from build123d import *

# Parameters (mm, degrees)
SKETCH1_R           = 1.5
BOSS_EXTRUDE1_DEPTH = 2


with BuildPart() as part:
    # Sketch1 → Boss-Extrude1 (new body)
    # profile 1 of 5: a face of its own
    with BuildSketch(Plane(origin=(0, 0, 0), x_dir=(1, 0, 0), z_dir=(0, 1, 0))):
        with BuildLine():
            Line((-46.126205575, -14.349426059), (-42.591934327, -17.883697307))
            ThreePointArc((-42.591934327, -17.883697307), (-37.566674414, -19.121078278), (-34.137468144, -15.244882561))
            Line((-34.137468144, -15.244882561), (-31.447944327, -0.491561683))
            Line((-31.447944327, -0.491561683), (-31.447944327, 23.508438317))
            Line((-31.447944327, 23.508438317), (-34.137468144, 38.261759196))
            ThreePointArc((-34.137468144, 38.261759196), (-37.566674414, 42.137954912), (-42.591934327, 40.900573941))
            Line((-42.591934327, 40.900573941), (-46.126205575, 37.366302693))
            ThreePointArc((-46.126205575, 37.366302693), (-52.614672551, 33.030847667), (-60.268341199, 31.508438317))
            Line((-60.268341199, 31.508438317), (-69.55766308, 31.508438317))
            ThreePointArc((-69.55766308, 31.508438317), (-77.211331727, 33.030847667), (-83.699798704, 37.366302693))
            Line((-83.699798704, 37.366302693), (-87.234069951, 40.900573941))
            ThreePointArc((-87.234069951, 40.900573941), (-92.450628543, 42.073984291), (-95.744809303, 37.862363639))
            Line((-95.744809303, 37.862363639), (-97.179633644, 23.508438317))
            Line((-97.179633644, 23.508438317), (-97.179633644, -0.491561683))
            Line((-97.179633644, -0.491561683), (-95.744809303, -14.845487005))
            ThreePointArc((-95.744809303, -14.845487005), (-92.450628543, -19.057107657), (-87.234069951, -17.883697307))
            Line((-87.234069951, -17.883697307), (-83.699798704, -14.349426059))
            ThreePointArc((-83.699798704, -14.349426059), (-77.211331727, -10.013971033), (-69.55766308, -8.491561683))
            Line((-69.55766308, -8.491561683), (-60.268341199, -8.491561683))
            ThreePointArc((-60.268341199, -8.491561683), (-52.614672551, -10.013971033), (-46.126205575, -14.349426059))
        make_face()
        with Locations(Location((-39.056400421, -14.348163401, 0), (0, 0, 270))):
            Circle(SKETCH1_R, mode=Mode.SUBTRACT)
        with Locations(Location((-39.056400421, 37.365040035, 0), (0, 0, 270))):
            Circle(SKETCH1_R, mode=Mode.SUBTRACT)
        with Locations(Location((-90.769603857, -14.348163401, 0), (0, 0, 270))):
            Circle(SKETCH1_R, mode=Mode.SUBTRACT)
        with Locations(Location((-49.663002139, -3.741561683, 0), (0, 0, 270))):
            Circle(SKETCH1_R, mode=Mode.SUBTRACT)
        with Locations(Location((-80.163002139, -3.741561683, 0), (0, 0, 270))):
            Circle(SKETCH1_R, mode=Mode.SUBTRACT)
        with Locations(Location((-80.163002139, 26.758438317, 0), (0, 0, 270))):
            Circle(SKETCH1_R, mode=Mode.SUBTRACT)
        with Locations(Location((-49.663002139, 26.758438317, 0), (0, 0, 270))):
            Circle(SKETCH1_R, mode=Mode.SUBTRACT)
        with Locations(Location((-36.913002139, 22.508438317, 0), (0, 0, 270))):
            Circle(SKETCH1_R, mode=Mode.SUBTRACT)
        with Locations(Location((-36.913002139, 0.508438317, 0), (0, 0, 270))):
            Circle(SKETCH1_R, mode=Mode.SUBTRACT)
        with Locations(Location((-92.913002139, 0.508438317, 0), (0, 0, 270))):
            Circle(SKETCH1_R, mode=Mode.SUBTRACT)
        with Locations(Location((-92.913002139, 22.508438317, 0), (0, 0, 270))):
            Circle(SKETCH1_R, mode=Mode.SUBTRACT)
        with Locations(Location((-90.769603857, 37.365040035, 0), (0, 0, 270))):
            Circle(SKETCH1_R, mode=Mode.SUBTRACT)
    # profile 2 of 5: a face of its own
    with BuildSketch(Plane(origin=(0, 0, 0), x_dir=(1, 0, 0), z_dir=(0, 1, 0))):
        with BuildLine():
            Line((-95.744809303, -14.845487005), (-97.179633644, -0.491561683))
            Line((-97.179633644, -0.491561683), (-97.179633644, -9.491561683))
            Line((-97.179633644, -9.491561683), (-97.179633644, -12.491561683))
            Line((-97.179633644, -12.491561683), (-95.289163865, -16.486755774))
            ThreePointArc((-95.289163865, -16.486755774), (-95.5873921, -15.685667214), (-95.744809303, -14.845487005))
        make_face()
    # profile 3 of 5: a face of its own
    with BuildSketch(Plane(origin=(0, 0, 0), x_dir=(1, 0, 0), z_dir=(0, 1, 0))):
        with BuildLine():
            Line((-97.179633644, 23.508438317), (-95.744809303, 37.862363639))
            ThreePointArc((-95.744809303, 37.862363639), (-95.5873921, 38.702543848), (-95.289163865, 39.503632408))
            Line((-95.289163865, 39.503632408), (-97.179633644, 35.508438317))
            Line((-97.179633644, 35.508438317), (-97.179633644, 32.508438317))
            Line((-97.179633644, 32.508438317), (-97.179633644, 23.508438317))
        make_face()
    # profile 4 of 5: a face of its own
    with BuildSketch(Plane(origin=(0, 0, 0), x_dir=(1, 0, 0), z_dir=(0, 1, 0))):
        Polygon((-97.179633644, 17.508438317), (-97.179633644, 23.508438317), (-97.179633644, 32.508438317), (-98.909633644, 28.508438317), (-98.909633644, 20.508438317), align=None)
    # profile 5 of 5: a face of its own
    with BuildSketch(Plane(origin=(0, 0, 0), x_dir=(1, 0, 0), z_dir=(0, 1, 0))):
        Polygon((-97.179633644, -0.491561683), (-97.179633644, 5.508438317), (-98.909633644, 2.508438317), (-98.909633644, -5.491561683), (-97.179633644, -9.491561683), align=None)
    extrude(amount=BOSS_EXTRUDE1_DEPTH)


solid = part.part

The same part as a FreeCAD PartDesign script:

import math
import FreeCAD as App
import Part
import Sketcher
from FreeCAD import Vector

doc = App.newDocument("Part")
body = doc.addObject("PartDesign::Body", "Body")

sketch1 = body.newObject("Sketcher::SketchObject", "Sketch")
sketch1.AttachmentSupport = (doc.getObject("XZ_Plane"), [""])
sketch1.MapMode = "FlatFace"
sketch1.addGeometry(Part.LineSegment(Vector(-46.1, 14.3, 0), Vector(-42.6, 17.9, 0)), False)
sketch1.addGeometry(Part.ArcOfCircle(Part.Circle(Vector(-39.1, 14.3, 0), Vector(0, 0, 1), 5), math.radians(10), math.radians(135)), False)
sketch1.addGeometry(Part.LineSegment(Vector(-34.1, 15.2, 0), Vector(-31.4, 0.5, 0)), False)
sketch1.addGeometry(Part.LineSegment(Vector(-31.4, 0.5, 0), Vector(-31.4, -23.5, 0)), False)
sketch1.addGeometry(Part.LineSegment(Vector(-31.4, -23.5, 0), Vector(-34.1, -38.3, 0)), False)
sketch1.addGeometry(Part.ArcOfCircle(Part.Circle(Vector(-39.1, -37.4, 0), Vector(0, 0, 1), 5), math.radians(-135), math.radians(-10)), False)
sketch1.addGeometry(Part.LineSegment(Vector(-42.6, -40.9, 0), Vector(-46.1, -37.4, 0)), False)
sketch1.addGeometry(Part.ArcOfCircle(Part.Circle(Vector(-60.3, -51.5, 0), Vector(0, 0, 1), 20), math.radians(45), math.radians(90)), False)
sketch1.addGeometry(Part.LineSegment(Vector(-60.3, -31.5, 0), Vector(-69.6, -31.5, 0)), False)
sketch1.addGeometry(Part.ArcOfCircle(Part.Circle(Vector(-69.6, -51.5, 0), Vector(0, 0, 1), 20), math.radians(90), math.radians(135)), False)
sketch1.addGeometry(Part.LineSegment(Vector(-83.7, -37.4, 0), Vector(-87.2, -40.9, 0)), False)
sketch1.addGeometry(Part.ArcOfCircle(Part.Circle(Vector(-90.8, -37.4, 0), Vector(0, 0, 1), 5), math.radians(-155), math.radians(-45)), False)
sketch1.addGeometry(Part.LineSegment(Vector(-95.3, -39.5, 0), Vector(-97.2, -35.5, 0)), False)
sketch1.addGeometry(Part.LineSegment(Vector(-97.2, -35.5, 0), Vector(-97.2, -32.5, 0)), False)
sketch1.addGeometry(Part.LineSegment(Vector(-97.2, -32.5, 0), Vector(-98.9, -28.5, 0)), False)
sketch1.addGeometry(Part.LineSegment(Vector(-98.9, -28.5, 0), Vector(-98.9, -20.5, 0)), False)
sketch1.addGeometry(Part.LineSegment(Vector(-98.9, -20.5, 0), Vector(-97.2, -17.5, 0)), False)
sketch1.addGeometry(Part.LineSegment(Vector(-97.2, -17.5, 0), Vector(-97.2, -5.5, 0)), False)
sketch1.addGeometry(Part.LineSegment(Vector(-97.2, -5.5, 0), Vector(-98.9, -2.5, 0)), False)
sketch1.addGeometry(Part.LineSegment(Vector(-98.9, -2.5, 0), Vector(-98.9, 5.5, 0)), False)
sketch1.addGeometry(Part.LineSegment(Vector(-98.9, 5.5, 0), Vector(-97.2, 9.5, 0)), False)
sketch1.addGeometry(Part.LineSegment(Vector(-97.2, 9.5, 0), Vector(-97.2, 12.5, 0)), False)
sketch1.addGeometry(Part.LineSegment(Vector(-97.2, 12.5, 0), Vector(-95.3, 16.5, 0)), False)
sketch1.addGeometry(Part.ArcOfCircle(Part.Circle(Vector(-90.8, 14.3, 0), Vector(0, 0, 1), 5), math.radians(45), math.radians(155)), False)
sketch1.addGeometry(Part.LineSegment(Vector(-87.2, 17.9, 0), Vector(-83.7, 14.3, 0)), False)
sketch1.addGeometry(Part.ArcOfCircle(Part.Circle(Vector(-69.6, 28.5, 0), Vector(0, 0, 1), 20), math.radians(-135), math.radians(-90)), False)
sketch1.addGeometry(Part.LineSegment(Vector(-69.6, 8.5, 0), Vector(-60.3, 8.5, 0)), False)
sketch1.addGeometry(Part.ArcOfCircle(Part.Circle(Vector(-60.3, 28.5, 0), Vector(0, 0, 1), 20), math.radians(-90), math.radians(-45)), False)
sketch1.addGeometry(Part.Circle(Vector(-90.8, 14.3, 0), Vector(0, 0, 1), 1.5), False)
sketch1.addGeometry(Part.Circle(Vector(-80.2, 3.7, 0), Vector(0, 0, 1), 1.5), False)
sketch1.addGeometry(Part.Circle(Vector(-92.9, -0.5, 0), Vector(0, 0, 1), 1.5), False)
sketch1.addGeometry(Part.Circle(Vector(-39.1, 14.3, 0), Vector(0, 0, 1), 1.5), False)
sketch1.addGeometry(Part.Circle(Vector(-49.7, 3.7, 0), Vector(0, 0, 1), 1.5), False)
sketch1.addGeometry(Part.Circle(Vector(-36.9, -0.5, 0), Vector(0, 0, 1), 1.5), False)
sketch1.addGeometry(Part.Circle(Vector(-92.9, -22.5, 0), Vector(0, 0, 1), 1.5), False)
sketch1.addGeometry(Part.Circle(Vector(-80.2, -26.8, 0), Vector(0, 0, 1), 1.5), False)
sketch1.addGeometry(Part.Circle(Vector(-90.8, -37.4, 0), Vector(0, 0, 1), 1.5), False)
sketch1.addGeometry(Part.Circle(Vector(-36.9, -22.5, 0), Vector(0, 0, 1), 1.5), False)
sketch1.addGeometry(Part.Circle(Vector(-49.7, -26.8, 0), Vector(0, 0, 1), 1.5), False)
sketch1.addGeometry(Part.Circle(Vector(-39.1, -37.4, 0), Vector(0, 0, 1), 1.5), False)
sketch1.addConstraint(Sketcher.Constraint("Tangent", 0, 2, 1, 2))
sketch1.addConstraint(Sketcher.Constraint("Tangent", 1, 1, 2, 1))
sketch1.addConstraint(Sketcher.Constraint("Coincident", 2, 2, 3, 1))
sketch1.addConstraint(Sketcher.Constraint("Coincident", 3, 2, 4, 1))
sketch1.addConstraint(Sketcher.Constraint("Tangent", 4, 2, 5, 2))
sketch1.addConstraint(Sketcher.Constraint("Tangent", 5, 1, 6, 1))
sketch1.addConstraint(Sketcher.Constraint("Tangent", 6, 2, 7, 1))
sketch1.addConstraint(Sketcher.Constraint("Tangent", 7, 2, 8, 1))
sketch1.addConstraint(Sketcher.Constraint("Tangent", 8, 2, 9, 1))
sketch1.addConstraint(Sketcher.Constraint("Tangent", 9, 2, 10, 1))
sketch1.addConstraint(Sketcher.Constraint("Tangent", 10, 2, 11, 2))
sketch1.addConstraint(Sketcher.Constraint("Tangent", 11, 1, 12, 1))
sketch1.addConstraint(Sketcher.Constraint("Coincident", 12, 2, 13, 1))
sketch1.addConstraint(Sketcher.Constraint("Coincident", 13, 2, 14, 1))
sketch1.addConstraint(Sketcher.Constraint("Coincident", 14, 2, 15, 1))
sketch1.addConstraint(Sketcher.Constraint("Coincident", 15, 2, 16, 1))
sketch1.addConstraint(Sketcher.Constraint("Coincident", 16, 2, 17, 1))
sketch1.addConstraint(Sketcher.Constraint("Coincident", 17, 2, 18, 1))
sketch1.addConstraint(Sketcher.Constraint("Coincident", 18, 2, 19, 1))
sketch1.addConstraint(Sketcher.Constraint("Coincident", 19, 2, 20, 1))
sketch1.addConstraint(Sketcher.Constraint("Coincident", 20, 2, 21, 1))
sketch1.addConstraint(Sketcher.Constraint("Coincident", 21, 2, 22, 1))
sketch1.addConstraint(Sketcher.Constraint("Tangent", 22, 2, 23, 2))
sketch1.addConstraint(Sketcher.Constraint("Tangent", 23, 1, 24, 1))
sketch1.addConstraint(Sketcher.Constraint("Tangent", 24, 2, 25, 1))
sketch1.addConstraint(Sketcher.Constraint("Tangent", 25, 2, 26, 1))
sketch1.addConstraint(Sketcher.Constraint("Tangent", 26, 2, 27, 1))
sketch1.addConstraint(Sketcher.Constraint("Tangent", 27, 2, 0, 1))
sketch1.addConstraint(Sketcher.Constraint("Vertical", 3))
sketch1.addConstraint(Sketcher.Constraint("Horizontal", 8))
sketch1.addConstraint(Sketcher.Constraint("Vertical", 13))
sketch1.addConstraint(Sketcher.Constraint("Vertical", 15))
sketch1.addConstraint(Sketcher.Constraint("Vertical", 17))
sketch1.addConstraint(Sketcher.Constraint("Vertical", 19))
sketch1.addConstraint(Sketcher.Constraint("Vertical", 21))
sketch1.addConstraint(Sketcher.Constraint("Horizontal", 26))
sketch1.addConstraint(Sketcher.Constraint("Coincident", 28, 3, 23, 3))
sketch1.addConstraint(Sketcher.Constraint("Coincident", 31, 3, 1, 3))
sketch1.addConstraint(Sketcher.Constraint("Coincident", 36, 3, 11, 3))
sketch1.addConstraint(Sketcher.Constraint("Coincident", 39, 3, 5, 3))
sketch1.addConstraint(Sketcher.Constraint("Equal", 1, 5))
sketch1.addConstraint(Sketcher.Constraint("Equal", 7, 9))
sketch1.addConstraint(Sketcher.Constraint("Equal", 5, 11))
sketch1.addConstraint(Sketcher.Constraint("Equal", 11, 23))
sketch1.addConstraint(Sketcher.Constraint("Equal", 9, 25))
sketch1.addConstraint(Sketcher.Constraint("Equal", 25, 27))
sketch1.addConstraint(Sketcher.Constraint("Equal", 28, 29))
sketch1.addConstraint(Sketcher.Constraint("Equal", 29, 30))
sketch1.addConstraint(Sketcher.Constraint("Equal", 30, 31))
sketch1.addConstraint(Sketcher.Constraint("Equal", 31, 32))
sketch1.addConstraint(Sketcher.Constraint("Equal", 32, 33))
sketch1.addConstraint(Sketcher.Constraint("Equal", 33, 34))
sketch1.addConstraint(Sketcher.Constraint("Equal", 34, 35))
sketch1.addConstraint(Sketcher.Constraint("Equal", 35, 36))
sketch1.addConstraint(Sketcher.Constraint("Equal", 36, 37))
sketch1.addConstraint(Sketcher.Constraint("Equal", 37, 38))
sketch1.addConstraint(Sketcher.Constraint("Equal", 38, 39))
sketch1.addConstraint(Sketcher.Constraint("Perpendicular", 0, 6))
sketch1.addConstraint(Sketcher.Constraint("Perpendicular", 6, 10))
sketch1.addConstraint(Sketcher.Constraint("Perpendicular", 10, 24))
sketch1.addConstraint(Sketcher.Constraint("Horizontal", 5, 3, 11, 3))
sketch1.addConstraint(Sketcher.Constraint("Horizontal", 1, 3, 23, 3))
sketch1.addConstraint(Sketcher.Constraint("Horizontal", 29, 3, 32, 3))
sketch1.addConstraint(Sketcher.Constraint("Horizontal", 30, 3, 33, 3))
sketch1.addConstraint(Sketcher.Constraint("Horizontal", 34, 3, 37, 3))
sketch1.addConstraint(Sketcher.Constraint("Horizontal", 35, 3, 38, 3))
sketch1.addConstraint(Sketcher.Constraint("Horizontal", 6, 2, 9, 2))
sketch1.addConstraint(Sketcher.Constraint("Vertical", 1, 3, 5, 3))
sketch1.addConstraint(Sketcher.Constraint("Vertical", 11, 3, 23, 3))
sketch1.addConstraint(Sketcher.Constraint("Vertical", 9, 3, 25, 3))
sketch1.addConstraint(Sketcher.Constraint("Vertical", 30, 3, 34, 3))
sketch1.addConstraint(Sketcher.Constraint("Vertical", 29, 3, 35, 3))
sketch1.addConstraint(Sketcher.Constraint("Vertical", 33, 3, 37, 3))
sketch1.addConstraint(Sketcher.Constraint("Vertical", 32, 3, 38, 3))
sketch1.addConstraint(Sketcher.Constraint("Vertical", 1, 1, 4, 2))
sketch1.addConstraint(Sketcher.Constraint("Vertical", 13, 2, 16, 2))
sketch1.addConstraint(Sketcher.Constraint("Vertical", 15, 2, 18, 2))
sketch1.addConstraint(Sketcher.Constraint("Vertical", 17, 2, 20, 2))
sketch1.addConstraint(Sketcher.Constraint("Vertical", 11, 1, 22, 2))
sketch1.addConstraint(Sketcher.Constraint("Equal", 15, 19))
sketch1.addConstraint(Sketcher.Constraint("Equal", 13, 21))
sketch1.addConstraint(Sketcher.Constraint("Equal", 16, 18))
sketch1.addConstraint(Sketcher.Constraint("Equal", 14, 20))
sketch1.addConstraint(Sketcher.Constraint("Diameter", 28, 3.0))
sketch1.addConstraint(Sketcher.Constraint("Radius", 1, 5.0))
sketch1.addConstraint(Sketcher.Constraint("Radius", 7, 20.0))
sketch1.addConstraint(Sketcher.Constraint("DistanceY", 3, 2, 3, 1, 24.0))
sketch1.addConstraint(Sketcher.Constraint("DistanceY", 13, 1, 13, 2, 3.0))
sketch1.addConstraint(Sketcher.Constraint("DistanceY", 15, 1, 15, 2, 8.0))
sketch1.addConstraint(Sketcher.Constraint("DistanceY", 17, 1, 17, 2, 12.0))
sketch1.addConstraint(Sketcher.Constraint("DistanceY", 9, 3, 25, 3, 80.0))
sketch1.addConstraint(Sketcher.Constraint("DistanceY", 30, 3, 25, 3, 29.0))
sketch1.addConstraint(Sketcher.Constraint("DistanceY", 34, 3, 30, 3, 22.0))
sketch1.addConstraint(Sketcher.Constraint("DistanceY", 13, 2, 34, 3, 10.0))
sketch1.addConstraint(Sketcher.Constraint("DistanceY", 13, 2, 14, 2, 4.0))
sketch1.addConstraint(Sketcher.Constraint("DistanceX", 29, 3, 32, 3, 30.5))
sketch1.addConstraint(Sketcher.Constraint("DistanceY", 35, 3, 29, 3, 30.5))
sketch1.addConstraint(Sketcher.Constraint("DistanceY", 29, 3, 25, 3, 24.75))
sketch1.addConstraint(Sketcher.Constraint("DistanceX", 30, 3, 29, 3, 12.75))
sketch1.addConstraint(Sketcher.Constraint("DistanceX", 32, 3, 33, 3, 12.75))
sketch1.addConstraint(Sketcher.Constraint("DistanceX", 14, 2, 13, 2, 1.73))
sketch1.addConstraint(Sketcher.Constraint("DistanceX", 8, 2, 8, 1, 9.289322))
sketch1.addConstraint(Sketcher.Constraint("DistanceX", 1, 3, -1, 1, 39.0564))
sketch1.addConstraint(Sketcher.Constraint("DistanceX", 9, 2, -1, 1, 83.699799))
sketch1.addConstraint(Sketcher.Constraint("DistanceX", 23, 3, 29, 3, 10.606602))
sketch1.addConstraint(Sketcher.Constraint("DistanceY", 5, 3, -1, 1, 37.36504))
sketch1.addConstraint(Sketcher.Constraint("DistanceX", 1, 1, -1, 1, 34.137468))
sketch1.addConstraint(Sketcher.Constraint("DistanceX", 11, 1, 11, 3, 4.51956))
pad1 = body.newObject("PartDesign::Pad", "Pad")
pad1.Profile = sketch1
pad1.Length = 2
pad1.Reversed = True

doc.recompute()
